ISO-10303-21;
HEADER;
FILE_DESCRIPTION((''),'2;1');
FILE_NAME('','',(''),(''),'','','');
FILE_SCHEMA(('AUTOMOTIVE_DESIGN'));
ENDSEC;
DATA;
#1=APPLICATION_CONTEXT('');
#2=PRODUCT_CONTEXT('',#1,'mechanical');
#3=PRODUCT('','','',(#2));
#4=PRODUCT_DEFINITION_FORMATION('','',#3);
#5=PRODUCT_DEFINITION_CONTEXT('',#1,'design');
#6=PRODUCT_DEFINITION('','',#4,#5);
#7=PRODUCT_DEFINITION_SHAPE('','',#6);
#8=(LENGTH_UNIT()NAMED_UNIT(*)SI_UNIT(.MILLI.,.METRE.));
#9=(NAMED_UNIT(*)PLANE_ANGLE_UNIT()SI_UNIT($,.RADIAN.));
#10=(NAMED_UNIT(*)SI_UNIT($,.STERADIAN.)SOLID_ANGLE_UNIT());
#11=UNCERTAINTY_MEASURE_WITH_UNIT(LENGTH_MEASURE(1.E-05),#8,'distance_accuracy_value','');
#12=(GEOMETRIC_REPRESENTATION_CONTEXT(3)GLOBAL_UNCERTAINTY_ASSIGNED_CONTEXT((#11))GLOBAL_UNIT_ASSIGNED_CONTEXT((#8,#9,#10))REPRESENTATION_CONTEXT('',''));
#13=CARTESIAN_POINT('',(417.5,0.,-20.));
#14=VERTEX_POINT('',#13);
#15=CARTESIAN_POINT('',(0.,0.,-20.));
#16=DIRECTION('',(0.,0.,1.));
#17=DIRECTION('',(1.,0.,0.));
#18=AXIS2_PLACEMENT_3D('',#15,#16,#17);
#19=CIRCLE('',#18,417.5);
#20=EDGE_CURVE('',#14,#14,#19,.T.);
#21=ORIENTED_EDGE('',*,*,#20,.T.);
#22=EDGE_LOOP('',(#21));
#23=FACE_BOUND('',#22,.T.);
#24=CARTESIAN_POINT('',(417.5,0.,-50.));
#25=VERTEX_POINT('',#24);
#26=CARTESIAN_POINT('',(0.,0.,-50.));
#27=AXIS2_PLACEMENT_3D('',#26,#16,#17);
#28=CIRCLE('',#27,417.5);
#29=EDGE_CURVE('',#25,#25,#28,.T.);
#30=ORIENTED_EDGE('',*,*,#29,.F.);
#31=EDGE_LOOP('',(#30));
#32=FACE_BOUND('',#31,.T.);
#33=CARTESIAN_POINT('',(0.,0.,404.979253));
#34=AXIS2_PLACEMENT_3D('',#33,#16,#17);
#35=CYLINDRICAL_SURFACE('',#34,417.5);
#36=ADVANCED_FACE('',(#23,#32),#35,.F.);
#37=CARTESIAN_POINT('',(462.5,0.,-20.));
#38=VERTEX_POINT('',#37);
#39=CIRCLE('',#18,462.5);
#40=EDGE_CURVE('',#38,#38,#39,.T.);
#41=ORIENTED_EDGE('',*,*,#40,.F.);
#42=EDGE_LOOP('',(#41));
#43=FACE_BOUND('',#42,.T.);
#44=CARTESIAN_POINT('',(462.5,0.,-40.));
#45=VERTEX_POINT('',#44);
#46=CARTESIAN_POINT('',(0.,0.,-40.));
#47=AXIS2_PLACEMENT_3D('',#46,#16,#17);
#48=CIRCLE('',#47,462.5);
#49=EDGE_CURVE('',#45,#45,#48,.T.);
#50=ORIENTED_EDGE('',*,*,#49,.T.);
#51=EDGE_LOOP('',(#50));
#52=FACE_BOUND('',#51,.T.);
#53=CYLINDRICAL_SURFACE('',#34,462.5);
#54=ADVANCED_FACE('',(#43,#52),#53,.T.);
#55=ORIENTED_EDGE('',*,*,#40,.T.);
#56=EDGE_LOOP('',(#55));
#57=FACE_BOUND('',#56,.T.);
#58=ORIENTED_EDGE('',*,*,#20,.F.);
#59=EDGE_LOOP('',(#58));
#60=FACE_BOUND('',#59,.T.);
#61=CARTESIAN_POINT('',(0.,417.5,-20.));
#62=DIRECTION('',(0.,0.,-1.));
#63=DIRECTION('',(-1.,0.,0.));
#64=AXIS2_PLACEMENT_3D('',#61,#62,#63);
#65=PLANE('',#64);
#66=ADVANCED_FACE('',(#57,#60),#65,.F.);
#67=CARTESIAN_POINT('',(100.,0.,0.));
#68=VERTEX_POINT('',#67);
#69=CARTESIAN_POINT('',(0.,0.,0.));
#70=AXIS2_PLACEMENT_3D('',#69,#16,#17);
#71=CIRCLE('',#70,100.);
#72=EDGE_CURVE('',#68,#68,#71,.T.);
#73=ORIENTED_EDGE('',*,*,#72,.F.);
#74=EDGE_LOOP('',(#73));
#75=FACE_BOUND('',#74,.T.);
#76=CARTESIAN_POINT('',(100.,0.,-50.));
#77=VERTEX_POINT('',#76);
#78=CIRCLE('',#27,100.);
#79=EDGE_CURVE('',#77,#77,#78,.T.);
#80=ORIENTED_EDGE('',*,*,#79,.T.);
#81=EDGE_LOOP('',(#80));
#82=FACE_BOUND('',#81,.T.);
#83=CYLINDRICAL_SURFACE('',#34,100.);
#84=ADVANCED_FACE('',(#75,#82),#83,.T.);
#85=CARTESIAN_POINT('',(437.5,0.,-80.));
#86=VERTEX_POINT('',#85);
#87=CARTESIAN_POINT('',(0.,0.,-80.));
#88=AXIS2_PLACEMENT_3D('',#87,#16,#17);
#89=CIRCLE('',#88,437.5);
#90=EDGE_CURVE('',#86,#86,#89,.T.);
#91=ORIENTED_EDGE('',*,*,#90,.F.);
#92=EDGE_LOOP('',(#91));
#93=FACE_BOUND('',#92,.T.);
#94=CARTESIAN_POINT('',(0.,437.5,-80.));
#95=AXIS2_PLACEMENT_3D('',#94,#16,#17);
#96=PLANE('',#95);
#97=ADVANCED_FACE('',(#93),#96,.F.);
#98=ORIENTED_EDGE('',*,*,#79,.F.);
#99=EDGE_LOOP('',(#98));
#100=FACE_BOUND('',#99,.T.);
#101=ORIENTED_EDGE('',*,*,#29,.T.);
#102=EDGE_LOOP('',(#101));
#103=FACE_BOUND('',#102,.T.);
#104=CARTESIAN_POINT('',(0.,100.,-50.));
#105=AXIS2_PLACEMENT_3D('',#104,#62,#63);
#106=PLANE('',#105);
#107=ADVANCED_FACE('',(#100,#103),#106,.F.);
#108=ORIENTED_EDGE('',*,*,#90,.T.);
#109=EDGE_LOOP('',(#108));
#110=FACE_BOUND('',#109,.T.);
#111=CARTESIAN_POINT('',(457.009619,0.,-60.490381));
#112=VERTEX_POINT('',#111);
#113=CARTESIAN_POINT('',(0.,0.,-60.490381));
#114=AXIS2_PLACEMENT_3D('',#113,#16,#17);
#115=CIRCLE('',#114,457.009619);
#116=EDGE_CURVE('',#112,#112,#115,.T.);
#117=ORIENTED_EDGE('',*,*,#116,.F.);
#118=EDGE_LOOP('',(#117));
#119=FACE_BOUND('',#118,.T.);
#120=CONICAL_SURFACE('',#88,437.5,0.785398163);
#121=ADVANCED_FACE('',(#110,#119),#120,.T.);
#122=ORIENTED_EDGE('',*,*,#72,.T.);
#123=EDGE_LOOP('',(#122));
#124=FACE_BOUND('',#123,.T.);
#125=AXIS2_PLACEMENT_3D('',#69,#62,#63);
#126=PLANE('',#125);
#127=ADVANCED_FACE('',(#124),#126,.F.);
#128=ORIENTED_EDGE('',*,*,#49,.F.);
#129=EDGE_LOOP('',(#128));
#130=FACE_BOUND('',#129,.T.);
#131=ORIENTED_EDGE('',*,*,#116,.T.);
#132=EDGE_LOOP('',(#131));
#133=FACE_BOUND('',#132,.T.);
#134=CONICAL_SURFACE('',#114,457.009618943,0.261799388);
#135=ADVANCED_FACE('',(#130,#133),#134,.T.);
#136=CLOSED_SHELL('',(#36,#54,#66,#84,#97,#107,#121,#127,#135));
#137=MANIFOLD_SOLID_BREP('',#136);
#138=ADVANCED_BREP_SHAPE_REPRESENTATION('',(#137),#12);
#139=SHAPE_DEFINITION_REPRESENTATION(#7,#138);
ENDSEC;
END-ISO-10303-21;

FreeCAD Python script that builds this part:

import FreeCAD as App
import Part
import Sketcher
Q = App.Units.Quantity


def add_polygon(sketch, points):
    """Adds a closed chain of lines whose ends are joined by coincident constraints."""
    first, n = sketch.GeometryCount, len(points)
    for a, b in zip(points, points[1:] + points[:1]):
        sketch.addGeometry(Part.LineSegment(App.Vector(*a, 0), App.Vector(*b, 0)), False)
    for i in range(n):
        sketch.addConstraint(Sketcher.Constraint("Coincident", first + i, 2, first + (i + 1) % n, 1))

doc = App.newDocument("Part")
body = doc.addObject("PartDesign::Body", "Body")

sketch1 = doc.addObject("Sketcher::SketchObject", "Sketch")
body.addObject(sketch1)
sketch1.AttachmentSupport = (doc.YZ_Plane, [""])
sketch1.MapMode = "FlatFace"
add_polygon(sketch1, [(100, 0), (0, 0), (0, -80), (438, -80), (457, -60), (462, -40), (462, -20), (418, -20), (418, -50), (100, -50)])
sketch1.addConstraint([
    Sketcher.Constraint("Horizontal", 0),
    Sketcher.Constraint("Vertical", 1),
    Sketcher.Constraint("Horizontal", 2),
    Sketcher.Constraint("Vertical", 5),
    Sketcher.Constraint("Horizontal", 6),
    Sketcher.Constraint("Vertical", 7),
    Sketcher.Constraint("Horizontal", 8),
    Sketcher.Constraint("Vertical", 9),
    Sketcher.Constraint("Coincident", 0, 2, -1, 1),
    Sketcher.Constraint("DistanceX", 0, 2, 0, 1, Q("100 mm")),
    Sketcher.Constraint("DistanceX", 6, 2, 6, 1, Q("45 mm")),
    Sketcher.Constraint("DistanceY", 1, 2, 1, 1, Q("80 mm")),
    Sketcher.Constraint("DistanceY", 5, 1, 5, 2, Q("20 mm")),
    Sketcher.Constraint("DistanceY", 7, 2, 7, 1, Q("30 mm")),
    Sketcher.Constraint("DistanceY", 9, 1, 9, 2, Q("50 mm")),
    Sketcher.Constraint("Angle", 3, Q("45 deg")),
    Sketcher.Constraint("Angle", 4, Q("75 deg")),
    Sketcher.Constraint("DistanceX", 2, 1, 2, 2, Q("437.5 mm")),
    Sketcher.Constraint("DistanceX", 8, 2, 8, 1, Q("317.5 mm")),
])
revolution = doc.addObject("PartDesign::Revolution", "Revolution")
body.addObject(revolution)
revolution.Profile = sketch1
revolution.ReferenceAxis = (sketch1, ["V_Axis"])
revolution.Angle = 360

doc.recompute()
